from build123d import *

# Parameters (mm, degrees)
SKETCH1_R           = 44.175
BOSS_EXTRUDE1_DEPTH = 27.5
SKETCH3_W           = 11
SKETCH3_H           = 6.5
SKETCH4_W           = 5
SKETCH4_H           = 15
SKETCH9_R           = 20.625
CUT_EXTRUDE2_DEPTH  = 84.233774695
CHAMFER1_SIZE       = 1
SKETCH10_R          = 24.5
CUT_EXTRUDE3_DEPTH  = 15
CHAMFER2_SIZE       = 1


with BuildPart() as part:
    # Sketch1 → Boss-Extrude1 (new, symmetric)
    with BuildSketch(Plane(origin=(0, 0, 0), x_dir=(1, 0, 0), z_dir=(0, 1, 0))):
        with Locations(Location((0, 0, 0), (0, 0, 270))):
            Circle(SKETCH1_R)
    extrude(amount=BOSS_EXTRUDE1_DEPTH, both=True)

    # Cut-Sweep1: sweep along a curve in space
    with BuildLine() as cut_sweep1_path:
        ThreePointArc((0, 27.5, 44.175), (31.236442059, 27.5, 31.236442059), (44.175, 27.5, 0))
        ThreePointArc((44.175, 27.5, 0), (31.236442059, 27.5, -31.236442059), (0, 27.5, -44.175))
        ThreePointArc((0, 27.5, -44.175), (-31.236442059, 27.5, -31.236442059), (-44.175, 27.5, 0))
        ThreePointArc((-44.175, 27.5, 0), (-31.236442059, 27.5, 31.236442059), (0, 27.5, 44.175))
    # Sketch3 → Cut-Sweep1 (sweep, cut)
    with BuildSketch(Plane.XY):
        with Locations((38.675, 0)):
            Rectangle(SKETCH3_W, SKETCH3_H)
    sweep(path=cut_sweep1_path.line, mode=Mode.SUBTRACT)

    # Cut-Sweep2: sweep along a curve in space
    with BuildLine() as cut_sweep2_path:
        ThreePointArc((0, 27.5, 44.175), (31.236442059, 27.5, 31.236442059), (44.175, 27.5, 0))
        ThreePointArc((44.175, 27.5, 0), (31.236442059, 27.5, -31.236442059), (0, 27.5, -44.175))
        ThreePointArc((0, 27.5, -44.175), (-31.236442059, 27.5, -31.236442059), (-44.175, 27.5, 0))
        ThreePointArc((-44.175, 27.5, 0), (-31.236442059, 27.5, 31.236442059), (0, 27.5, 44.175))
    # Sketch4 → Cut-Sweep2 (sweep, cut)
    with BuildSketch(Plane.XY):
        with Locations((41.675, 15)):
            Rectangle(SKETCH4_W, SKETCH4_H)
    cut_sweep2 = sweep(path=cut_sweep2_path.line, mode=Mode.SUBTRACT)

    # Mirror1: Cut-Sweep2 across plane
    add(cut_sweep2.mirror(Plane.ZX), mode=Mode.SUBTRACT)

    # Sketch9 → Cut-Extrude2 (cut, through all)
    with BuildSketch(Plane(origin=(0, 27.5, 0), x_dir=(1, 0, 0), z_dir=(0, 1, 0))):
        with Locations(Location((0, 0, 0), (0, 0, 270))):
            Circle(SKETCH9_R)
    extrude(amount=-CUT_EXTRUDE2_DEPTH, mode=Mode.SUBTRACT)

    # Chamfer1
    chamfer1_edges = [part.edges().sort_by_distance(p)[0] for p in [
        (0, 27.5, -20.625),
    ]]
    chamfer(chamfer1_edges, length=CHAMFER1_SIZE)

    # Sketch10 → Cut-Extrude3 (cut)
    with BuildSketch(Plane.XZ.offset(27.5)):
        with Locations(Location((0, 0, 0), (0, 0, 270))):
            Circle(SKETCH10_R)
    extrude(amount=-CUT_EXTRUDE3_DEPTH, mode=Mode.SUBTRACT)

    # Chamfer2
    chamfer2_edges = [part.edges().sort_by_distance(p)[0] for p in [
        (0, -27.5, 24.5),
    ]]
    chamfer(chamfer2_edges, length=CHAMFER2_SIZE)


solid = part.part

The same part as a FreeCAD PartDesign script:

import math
import FreeCAD as App
import Part
import Sketcher
from FreeCAD import Vector


def edges_at(feature, points):
    """Names of the edges that pass closest to the given points."""
    edges = feature.Shape.Edges
    near = lambda p: min(range(len(edges)), key=lambda i: edges[i].distToShape(Part.Vertex(*p))[0])
    return sorted({f"Edge{near(p) + 1}" for p in points})


def add_polygon(sketch, points):
    """Adds a closed chain of lines whose ends are joined by coincident constraints."""
    first, n = sketch.GeometryCount, len(points)
    for a, b in zip(points, points[1:] + points[:1]):
        sketch.addGeometry(Part.LineSegment(App.Vector(*a, 0), App.Vector(*b, 0)), False)
    for i in range(n):
        sketch.addConstraint(Sketcher.Constraint("Coincident", first + i, 2, first + (i + 1) % n, 1))

doc = App.newDocument("Part")
body = doc.addObject("PartDesign::Body", "Body")

# Sketch on XZ plane
sketch1 = doc.addObject("Sketcher::SketchObject", "Sketch")
body.addObject(sketch1)
sketch1.AttachmentSupport = (doc.XZ_Plane, [""])
sketch1.MapMode = "FlatFace"
sketch1.addGeometry(Part.Circle(Vector(0, 0, 0), Vector(0, 0, 1), 44), False)
sketch1.addConstraint([
    Sketcher.Constraint("Coincident", 0, 3, -1, 1),
    Sketcher.Constraint("Diameter", 0, 88.35),
])
pad1 = doc.addObject("PartDesign::Pad", "Pad")
body.addObject(pad1)
pad1.Profile = sketch1
pad1.Length = 55
pad1.Midplane = True

# Sketch on XY plane
sketch2 = doc.addObject("Sketcher::SketchObject", "Sketch001")
body.addObject(sketch2)
sketch2.AttachmentSupport = (doc.XY_Plane, [""])
sketch2.MapMode = "FlatFace"
add_polygon(sketch2, [(33, 3), (33, -3), (44, -3), (44, 3)])  # lines 0-3
sketch2.addConstraint([
    Sketcher.Constraint("Vertical", 0),
    Sketcher.Constraint("Horizontal", 1),
    Sketcher.Constraint("Vertical", 2),
    Sketcher.Constraint("Horizontal", 3),
    Sketcher.Constraint("DistanceX", 1, 1, 1, 2, 11.0),
    Sketcher.Constraint("DistanceY", 0, 2, 0, 1, 6.5),
    Sketcher.Constraint("DistanceY", 0, 2, -1, 1, 3.25),
    Sketcher.Constraint("DistanceX", -1, 1, 0, 2, 33.175),
])

# Sketch on XZ plane
sketch3 = doc.addObject("Sketcher::SketchObject", "Sketch002")
body.addObject(sketch3)
sketch3.AttachmentSupport = (doc.XZ_Plane, [""])
sketch3.MapMode = "FlatFace"
sketch3.AttachmentOffset = App.Placement(Vector(0, 0, -27.5), App.Rotation())
sketch3.addGeometry([
    Part.ArcOfCircle(Part.Circle(Vector(0, 0, 0), Vector(0, 0, 1), 44), math.radians(0), math.radians(90)),
    Part.ArcOfCircle(Part.Circle(Vector(0, 0, 0), Vector(0, 0, 1), 44), math.radians(-90), math.radians(0)),
    Part.ArcOfCircle(Part.Circle(Vector(0, 0, 0), Vector(0, 0, 1), 44), math.radians(180), math.radians(270)),
    Part.ArcOfCircle(Part.Circle(Vector(0, 0, 0), Vector(0, 0, 1), 44), math.radians(90), math.radians(180)),
], False)
sketch3.addConstraint([
    Sketcher.Constraint("Tangent", 0, 1, 1, 2),
    Sketcher.Constraint("Tangent", 1, 1, 2, 2),
    Sketcher.Constraint("Tangent", 2, 1, 3, 2),
    Sketcher.Constraint("Tangent", 3, 1, 0, 2),
    Sketcher.Constraint("Coincident", 0, 3, -1, 1),
    Sketcher.Constraint("Equal", 0, 1),
    Sketcher.Constraint("PointOnObject", 0, 1, -1),
    Sketcher.Constraint("PointOnObject", 1, 1, -2),
    Sketcher.Constraint("PointOnObject", 2, 1, -1),
    Sketcher.Constraint("PointOnObject", 3, 1, -2),
    Sketcher.Constraint("Radius", 0, 44.175),
])
doc.recompute()

subtractivepipe = doc.addObject("PartDesign::SubtractivePipe", "SubtractivePipe")
body.addObject(subtractivepipe)
subtractivepipe.Profile = sketch2
subtractivepipe.Spine = (sketch3, ["Edge1", "Edge2", "Edge3", "Edge4"])

# Sketch on XY plane
sketch4 = doc.addObject("Sketcher::SketchObject", "Sketch003")
body.addObject(sketch4)
sketch4.AttachmentSupport = (doc.XY_Plane, [""])
sketch4.MapMode = "FlatFace"
add_polygon(sketch4, [(39, 22), (39, 8), (44, 8), (44, 22)])  # lines 0-3
sketch4.addConstraint([
    Sketcher.Constraint("Vertical", 0),
    Sketcher.Constraint("Horizontal", 1),
    Sketcher.Constraint("Vertical", 2),
    Sketcher.Constraint("Horizontal", 3),
    Sketcher.Constraint("DistanceX", 1, 1, 1, 2, 5.0),
    Sketcher.Constraint("DistanceY", 0, 2, 0, 1, 15.0),
    Sketcher.Constraint("DistanceY", -1, 1, 0, 2, 7.5),
    Sketcher.Constraint("DistanceX", -1, 1, 0, 2, 39.175),
])

# Sketch on XZ plane
sketch5 = doc.addObject("Sketcher::SketchObject", "Sketch004")
body.addObject(sketch5)
sketch5.AttachmentSupport = (doc.XZ_Plane, [""])
sketch5.MapMode = "FlatFace"
sketch5.AttachmentOffset = App.Placement(Vector(0, 0, -27.5), App.Rotation())
sketch5.addGeometry([
    Part.ArcOfCircle(Part.Circle(Vector(0, 0, 0), Vector(0, 0, 1), 44), math.radians(0), math.radians(90)),
    Part.ArcOfCircle(Part.Circle(Vector(0, 0, 0), Vector(0, 0, 1), 44), math.radians(-90), math.radians(0)),
    Part.ArcOfCircle(Part.Circle(Vector(0, 0, 0), Vector(0, 0, 1), 44), math.radians(180), math.radians(270)),
    Part.ArcOfCircle(Part.Circle(Vector(0, 0, 0), Vector(0, 0, 1), 44), math.radians(90), math.radians(180)),
], False)
sketch5.addConstraint([
    Sketcher.Constraint("Tangent", 0, 1, 1, 2),
    Sketcher.Constraint("Tangent", 1, 1, 2, 2),
    Sketcher.Constraint("Tangent", 2, 1, 3, 2),
    Sketcher.Constraint("Tangent", 3, 1, 0, 2),
    Sketcher.Constraint("Coincident", 0, 3, -1, 1),
    Sketcher.Constraint("Equal", 0, 1),
    Sketcher.Constraint("PointOnObject", 0, 1, -1),
    Sketcher.Constraint("PointOnObject", 1, 1, -2),
    Sketcher.Constraint("PointOnObject", 2, 1, -1),
    Sketcher.Constraint("PointOnObject", 3, 1, -2),
    Sketcher.Constraint("Radius", 0, 44.175),
])
doc.recompute()

subtractivepipe2 = doc.addObject("PartDesign::SubtractivePipe", "SubtractivePipe001")
body.addObject(subtractivepipe2)
subtractivepipe2.Profile = sketch4
subtractivepipe2.Spine = (sketch5, ["Edge1", "Edge2", "Edge3", "Edge4"])
doc.recompute()

mirrored = doc.addObject("PartDesign::Mirrored", "Mirrored")
body.addObject(mirrored)
mirrored.Originals = [subtractivepipe2]
mirrored.MirrorPlane = (doc.XZ_Plane, [""])
body.Tip = mirrored

# Sketch on XZ plane
sketch6 = doc.addObject("Sketcher::SketchObject", "Sketch005")
body.addObject(sketch6)
sketch6.AttachmentSupport = (doc.XZ_Plane, [""])
sketch6.MapMode = "FlatFace"
sketch6.AttachmentOffset = App.Placement(Vector(0, 0, -27.5), App.Rotation())
sketch6.addGeometry(Part.Circle(Vector(0, 0, 0), Vector(0, 0, 1), 21), False)
sketch6.addConstraint([
    Sketcher.Constraint("Coincident", 0, 3, -1, 1),
    Sketcher.Constraint("Diameter", 0, 41.25),
])
pocket1 = doc.addObject("PartDesign::Pocket", "Pocket")
body.addObject(pocket1)
pocket1.Profile = sketch6
pocket1.Type = "ThroughAll"
pocket1.Reversed = True
doc.recompute()

chamfer = doc.addObject("PartDesign::Chamfer", "Chamfer")
body.addObject(chamfer)
chamfer.Base = (pocket1, edges_at(pocket1, [(0, 27.5, -20.625)]))
chamfer.Size = 1

# Sketch on XZ plane
sketch7 = doc.addObject("Sketcher::SketchObject", "Sketch006")
body.addObject(sketch7)
sketch7.AttachmentSupport = (doc.XZ_Plane, [""])
sketch7.MapMode = "FlatFace"
sketch7.AttachmentOffset = App.Placement(Vector(0, 0, 27.5), App.Rotation())
sketch7.addGeometry(Part.Circle(Vector(0, 0, 0), Vector(0, 0, 1), 24), False)
sketch7.addConstraint([
    Sketcher.Constraint("Coincident", 0, 3, -1, 1),
    Sketcher.Constraint("Diameter", 0, 49.0),
])
pocket2 = doc.addObject("PartDesign::Pocket", "Pocket001")
body.addObject(pocket2)
pocket2.Profile = sketch7
pocket2.Length = 15
doc.recompute()

chamfer2 = doc.addObject("PartDesign::Chamfer", "Chamfer001")
body.addObject(chamfer2)
chamfer2.Base = (pocket2, edges_at(pocket2, [(0, -27.5, 24.5)]))
chamfer2.Size = 1

doc.recompute()
